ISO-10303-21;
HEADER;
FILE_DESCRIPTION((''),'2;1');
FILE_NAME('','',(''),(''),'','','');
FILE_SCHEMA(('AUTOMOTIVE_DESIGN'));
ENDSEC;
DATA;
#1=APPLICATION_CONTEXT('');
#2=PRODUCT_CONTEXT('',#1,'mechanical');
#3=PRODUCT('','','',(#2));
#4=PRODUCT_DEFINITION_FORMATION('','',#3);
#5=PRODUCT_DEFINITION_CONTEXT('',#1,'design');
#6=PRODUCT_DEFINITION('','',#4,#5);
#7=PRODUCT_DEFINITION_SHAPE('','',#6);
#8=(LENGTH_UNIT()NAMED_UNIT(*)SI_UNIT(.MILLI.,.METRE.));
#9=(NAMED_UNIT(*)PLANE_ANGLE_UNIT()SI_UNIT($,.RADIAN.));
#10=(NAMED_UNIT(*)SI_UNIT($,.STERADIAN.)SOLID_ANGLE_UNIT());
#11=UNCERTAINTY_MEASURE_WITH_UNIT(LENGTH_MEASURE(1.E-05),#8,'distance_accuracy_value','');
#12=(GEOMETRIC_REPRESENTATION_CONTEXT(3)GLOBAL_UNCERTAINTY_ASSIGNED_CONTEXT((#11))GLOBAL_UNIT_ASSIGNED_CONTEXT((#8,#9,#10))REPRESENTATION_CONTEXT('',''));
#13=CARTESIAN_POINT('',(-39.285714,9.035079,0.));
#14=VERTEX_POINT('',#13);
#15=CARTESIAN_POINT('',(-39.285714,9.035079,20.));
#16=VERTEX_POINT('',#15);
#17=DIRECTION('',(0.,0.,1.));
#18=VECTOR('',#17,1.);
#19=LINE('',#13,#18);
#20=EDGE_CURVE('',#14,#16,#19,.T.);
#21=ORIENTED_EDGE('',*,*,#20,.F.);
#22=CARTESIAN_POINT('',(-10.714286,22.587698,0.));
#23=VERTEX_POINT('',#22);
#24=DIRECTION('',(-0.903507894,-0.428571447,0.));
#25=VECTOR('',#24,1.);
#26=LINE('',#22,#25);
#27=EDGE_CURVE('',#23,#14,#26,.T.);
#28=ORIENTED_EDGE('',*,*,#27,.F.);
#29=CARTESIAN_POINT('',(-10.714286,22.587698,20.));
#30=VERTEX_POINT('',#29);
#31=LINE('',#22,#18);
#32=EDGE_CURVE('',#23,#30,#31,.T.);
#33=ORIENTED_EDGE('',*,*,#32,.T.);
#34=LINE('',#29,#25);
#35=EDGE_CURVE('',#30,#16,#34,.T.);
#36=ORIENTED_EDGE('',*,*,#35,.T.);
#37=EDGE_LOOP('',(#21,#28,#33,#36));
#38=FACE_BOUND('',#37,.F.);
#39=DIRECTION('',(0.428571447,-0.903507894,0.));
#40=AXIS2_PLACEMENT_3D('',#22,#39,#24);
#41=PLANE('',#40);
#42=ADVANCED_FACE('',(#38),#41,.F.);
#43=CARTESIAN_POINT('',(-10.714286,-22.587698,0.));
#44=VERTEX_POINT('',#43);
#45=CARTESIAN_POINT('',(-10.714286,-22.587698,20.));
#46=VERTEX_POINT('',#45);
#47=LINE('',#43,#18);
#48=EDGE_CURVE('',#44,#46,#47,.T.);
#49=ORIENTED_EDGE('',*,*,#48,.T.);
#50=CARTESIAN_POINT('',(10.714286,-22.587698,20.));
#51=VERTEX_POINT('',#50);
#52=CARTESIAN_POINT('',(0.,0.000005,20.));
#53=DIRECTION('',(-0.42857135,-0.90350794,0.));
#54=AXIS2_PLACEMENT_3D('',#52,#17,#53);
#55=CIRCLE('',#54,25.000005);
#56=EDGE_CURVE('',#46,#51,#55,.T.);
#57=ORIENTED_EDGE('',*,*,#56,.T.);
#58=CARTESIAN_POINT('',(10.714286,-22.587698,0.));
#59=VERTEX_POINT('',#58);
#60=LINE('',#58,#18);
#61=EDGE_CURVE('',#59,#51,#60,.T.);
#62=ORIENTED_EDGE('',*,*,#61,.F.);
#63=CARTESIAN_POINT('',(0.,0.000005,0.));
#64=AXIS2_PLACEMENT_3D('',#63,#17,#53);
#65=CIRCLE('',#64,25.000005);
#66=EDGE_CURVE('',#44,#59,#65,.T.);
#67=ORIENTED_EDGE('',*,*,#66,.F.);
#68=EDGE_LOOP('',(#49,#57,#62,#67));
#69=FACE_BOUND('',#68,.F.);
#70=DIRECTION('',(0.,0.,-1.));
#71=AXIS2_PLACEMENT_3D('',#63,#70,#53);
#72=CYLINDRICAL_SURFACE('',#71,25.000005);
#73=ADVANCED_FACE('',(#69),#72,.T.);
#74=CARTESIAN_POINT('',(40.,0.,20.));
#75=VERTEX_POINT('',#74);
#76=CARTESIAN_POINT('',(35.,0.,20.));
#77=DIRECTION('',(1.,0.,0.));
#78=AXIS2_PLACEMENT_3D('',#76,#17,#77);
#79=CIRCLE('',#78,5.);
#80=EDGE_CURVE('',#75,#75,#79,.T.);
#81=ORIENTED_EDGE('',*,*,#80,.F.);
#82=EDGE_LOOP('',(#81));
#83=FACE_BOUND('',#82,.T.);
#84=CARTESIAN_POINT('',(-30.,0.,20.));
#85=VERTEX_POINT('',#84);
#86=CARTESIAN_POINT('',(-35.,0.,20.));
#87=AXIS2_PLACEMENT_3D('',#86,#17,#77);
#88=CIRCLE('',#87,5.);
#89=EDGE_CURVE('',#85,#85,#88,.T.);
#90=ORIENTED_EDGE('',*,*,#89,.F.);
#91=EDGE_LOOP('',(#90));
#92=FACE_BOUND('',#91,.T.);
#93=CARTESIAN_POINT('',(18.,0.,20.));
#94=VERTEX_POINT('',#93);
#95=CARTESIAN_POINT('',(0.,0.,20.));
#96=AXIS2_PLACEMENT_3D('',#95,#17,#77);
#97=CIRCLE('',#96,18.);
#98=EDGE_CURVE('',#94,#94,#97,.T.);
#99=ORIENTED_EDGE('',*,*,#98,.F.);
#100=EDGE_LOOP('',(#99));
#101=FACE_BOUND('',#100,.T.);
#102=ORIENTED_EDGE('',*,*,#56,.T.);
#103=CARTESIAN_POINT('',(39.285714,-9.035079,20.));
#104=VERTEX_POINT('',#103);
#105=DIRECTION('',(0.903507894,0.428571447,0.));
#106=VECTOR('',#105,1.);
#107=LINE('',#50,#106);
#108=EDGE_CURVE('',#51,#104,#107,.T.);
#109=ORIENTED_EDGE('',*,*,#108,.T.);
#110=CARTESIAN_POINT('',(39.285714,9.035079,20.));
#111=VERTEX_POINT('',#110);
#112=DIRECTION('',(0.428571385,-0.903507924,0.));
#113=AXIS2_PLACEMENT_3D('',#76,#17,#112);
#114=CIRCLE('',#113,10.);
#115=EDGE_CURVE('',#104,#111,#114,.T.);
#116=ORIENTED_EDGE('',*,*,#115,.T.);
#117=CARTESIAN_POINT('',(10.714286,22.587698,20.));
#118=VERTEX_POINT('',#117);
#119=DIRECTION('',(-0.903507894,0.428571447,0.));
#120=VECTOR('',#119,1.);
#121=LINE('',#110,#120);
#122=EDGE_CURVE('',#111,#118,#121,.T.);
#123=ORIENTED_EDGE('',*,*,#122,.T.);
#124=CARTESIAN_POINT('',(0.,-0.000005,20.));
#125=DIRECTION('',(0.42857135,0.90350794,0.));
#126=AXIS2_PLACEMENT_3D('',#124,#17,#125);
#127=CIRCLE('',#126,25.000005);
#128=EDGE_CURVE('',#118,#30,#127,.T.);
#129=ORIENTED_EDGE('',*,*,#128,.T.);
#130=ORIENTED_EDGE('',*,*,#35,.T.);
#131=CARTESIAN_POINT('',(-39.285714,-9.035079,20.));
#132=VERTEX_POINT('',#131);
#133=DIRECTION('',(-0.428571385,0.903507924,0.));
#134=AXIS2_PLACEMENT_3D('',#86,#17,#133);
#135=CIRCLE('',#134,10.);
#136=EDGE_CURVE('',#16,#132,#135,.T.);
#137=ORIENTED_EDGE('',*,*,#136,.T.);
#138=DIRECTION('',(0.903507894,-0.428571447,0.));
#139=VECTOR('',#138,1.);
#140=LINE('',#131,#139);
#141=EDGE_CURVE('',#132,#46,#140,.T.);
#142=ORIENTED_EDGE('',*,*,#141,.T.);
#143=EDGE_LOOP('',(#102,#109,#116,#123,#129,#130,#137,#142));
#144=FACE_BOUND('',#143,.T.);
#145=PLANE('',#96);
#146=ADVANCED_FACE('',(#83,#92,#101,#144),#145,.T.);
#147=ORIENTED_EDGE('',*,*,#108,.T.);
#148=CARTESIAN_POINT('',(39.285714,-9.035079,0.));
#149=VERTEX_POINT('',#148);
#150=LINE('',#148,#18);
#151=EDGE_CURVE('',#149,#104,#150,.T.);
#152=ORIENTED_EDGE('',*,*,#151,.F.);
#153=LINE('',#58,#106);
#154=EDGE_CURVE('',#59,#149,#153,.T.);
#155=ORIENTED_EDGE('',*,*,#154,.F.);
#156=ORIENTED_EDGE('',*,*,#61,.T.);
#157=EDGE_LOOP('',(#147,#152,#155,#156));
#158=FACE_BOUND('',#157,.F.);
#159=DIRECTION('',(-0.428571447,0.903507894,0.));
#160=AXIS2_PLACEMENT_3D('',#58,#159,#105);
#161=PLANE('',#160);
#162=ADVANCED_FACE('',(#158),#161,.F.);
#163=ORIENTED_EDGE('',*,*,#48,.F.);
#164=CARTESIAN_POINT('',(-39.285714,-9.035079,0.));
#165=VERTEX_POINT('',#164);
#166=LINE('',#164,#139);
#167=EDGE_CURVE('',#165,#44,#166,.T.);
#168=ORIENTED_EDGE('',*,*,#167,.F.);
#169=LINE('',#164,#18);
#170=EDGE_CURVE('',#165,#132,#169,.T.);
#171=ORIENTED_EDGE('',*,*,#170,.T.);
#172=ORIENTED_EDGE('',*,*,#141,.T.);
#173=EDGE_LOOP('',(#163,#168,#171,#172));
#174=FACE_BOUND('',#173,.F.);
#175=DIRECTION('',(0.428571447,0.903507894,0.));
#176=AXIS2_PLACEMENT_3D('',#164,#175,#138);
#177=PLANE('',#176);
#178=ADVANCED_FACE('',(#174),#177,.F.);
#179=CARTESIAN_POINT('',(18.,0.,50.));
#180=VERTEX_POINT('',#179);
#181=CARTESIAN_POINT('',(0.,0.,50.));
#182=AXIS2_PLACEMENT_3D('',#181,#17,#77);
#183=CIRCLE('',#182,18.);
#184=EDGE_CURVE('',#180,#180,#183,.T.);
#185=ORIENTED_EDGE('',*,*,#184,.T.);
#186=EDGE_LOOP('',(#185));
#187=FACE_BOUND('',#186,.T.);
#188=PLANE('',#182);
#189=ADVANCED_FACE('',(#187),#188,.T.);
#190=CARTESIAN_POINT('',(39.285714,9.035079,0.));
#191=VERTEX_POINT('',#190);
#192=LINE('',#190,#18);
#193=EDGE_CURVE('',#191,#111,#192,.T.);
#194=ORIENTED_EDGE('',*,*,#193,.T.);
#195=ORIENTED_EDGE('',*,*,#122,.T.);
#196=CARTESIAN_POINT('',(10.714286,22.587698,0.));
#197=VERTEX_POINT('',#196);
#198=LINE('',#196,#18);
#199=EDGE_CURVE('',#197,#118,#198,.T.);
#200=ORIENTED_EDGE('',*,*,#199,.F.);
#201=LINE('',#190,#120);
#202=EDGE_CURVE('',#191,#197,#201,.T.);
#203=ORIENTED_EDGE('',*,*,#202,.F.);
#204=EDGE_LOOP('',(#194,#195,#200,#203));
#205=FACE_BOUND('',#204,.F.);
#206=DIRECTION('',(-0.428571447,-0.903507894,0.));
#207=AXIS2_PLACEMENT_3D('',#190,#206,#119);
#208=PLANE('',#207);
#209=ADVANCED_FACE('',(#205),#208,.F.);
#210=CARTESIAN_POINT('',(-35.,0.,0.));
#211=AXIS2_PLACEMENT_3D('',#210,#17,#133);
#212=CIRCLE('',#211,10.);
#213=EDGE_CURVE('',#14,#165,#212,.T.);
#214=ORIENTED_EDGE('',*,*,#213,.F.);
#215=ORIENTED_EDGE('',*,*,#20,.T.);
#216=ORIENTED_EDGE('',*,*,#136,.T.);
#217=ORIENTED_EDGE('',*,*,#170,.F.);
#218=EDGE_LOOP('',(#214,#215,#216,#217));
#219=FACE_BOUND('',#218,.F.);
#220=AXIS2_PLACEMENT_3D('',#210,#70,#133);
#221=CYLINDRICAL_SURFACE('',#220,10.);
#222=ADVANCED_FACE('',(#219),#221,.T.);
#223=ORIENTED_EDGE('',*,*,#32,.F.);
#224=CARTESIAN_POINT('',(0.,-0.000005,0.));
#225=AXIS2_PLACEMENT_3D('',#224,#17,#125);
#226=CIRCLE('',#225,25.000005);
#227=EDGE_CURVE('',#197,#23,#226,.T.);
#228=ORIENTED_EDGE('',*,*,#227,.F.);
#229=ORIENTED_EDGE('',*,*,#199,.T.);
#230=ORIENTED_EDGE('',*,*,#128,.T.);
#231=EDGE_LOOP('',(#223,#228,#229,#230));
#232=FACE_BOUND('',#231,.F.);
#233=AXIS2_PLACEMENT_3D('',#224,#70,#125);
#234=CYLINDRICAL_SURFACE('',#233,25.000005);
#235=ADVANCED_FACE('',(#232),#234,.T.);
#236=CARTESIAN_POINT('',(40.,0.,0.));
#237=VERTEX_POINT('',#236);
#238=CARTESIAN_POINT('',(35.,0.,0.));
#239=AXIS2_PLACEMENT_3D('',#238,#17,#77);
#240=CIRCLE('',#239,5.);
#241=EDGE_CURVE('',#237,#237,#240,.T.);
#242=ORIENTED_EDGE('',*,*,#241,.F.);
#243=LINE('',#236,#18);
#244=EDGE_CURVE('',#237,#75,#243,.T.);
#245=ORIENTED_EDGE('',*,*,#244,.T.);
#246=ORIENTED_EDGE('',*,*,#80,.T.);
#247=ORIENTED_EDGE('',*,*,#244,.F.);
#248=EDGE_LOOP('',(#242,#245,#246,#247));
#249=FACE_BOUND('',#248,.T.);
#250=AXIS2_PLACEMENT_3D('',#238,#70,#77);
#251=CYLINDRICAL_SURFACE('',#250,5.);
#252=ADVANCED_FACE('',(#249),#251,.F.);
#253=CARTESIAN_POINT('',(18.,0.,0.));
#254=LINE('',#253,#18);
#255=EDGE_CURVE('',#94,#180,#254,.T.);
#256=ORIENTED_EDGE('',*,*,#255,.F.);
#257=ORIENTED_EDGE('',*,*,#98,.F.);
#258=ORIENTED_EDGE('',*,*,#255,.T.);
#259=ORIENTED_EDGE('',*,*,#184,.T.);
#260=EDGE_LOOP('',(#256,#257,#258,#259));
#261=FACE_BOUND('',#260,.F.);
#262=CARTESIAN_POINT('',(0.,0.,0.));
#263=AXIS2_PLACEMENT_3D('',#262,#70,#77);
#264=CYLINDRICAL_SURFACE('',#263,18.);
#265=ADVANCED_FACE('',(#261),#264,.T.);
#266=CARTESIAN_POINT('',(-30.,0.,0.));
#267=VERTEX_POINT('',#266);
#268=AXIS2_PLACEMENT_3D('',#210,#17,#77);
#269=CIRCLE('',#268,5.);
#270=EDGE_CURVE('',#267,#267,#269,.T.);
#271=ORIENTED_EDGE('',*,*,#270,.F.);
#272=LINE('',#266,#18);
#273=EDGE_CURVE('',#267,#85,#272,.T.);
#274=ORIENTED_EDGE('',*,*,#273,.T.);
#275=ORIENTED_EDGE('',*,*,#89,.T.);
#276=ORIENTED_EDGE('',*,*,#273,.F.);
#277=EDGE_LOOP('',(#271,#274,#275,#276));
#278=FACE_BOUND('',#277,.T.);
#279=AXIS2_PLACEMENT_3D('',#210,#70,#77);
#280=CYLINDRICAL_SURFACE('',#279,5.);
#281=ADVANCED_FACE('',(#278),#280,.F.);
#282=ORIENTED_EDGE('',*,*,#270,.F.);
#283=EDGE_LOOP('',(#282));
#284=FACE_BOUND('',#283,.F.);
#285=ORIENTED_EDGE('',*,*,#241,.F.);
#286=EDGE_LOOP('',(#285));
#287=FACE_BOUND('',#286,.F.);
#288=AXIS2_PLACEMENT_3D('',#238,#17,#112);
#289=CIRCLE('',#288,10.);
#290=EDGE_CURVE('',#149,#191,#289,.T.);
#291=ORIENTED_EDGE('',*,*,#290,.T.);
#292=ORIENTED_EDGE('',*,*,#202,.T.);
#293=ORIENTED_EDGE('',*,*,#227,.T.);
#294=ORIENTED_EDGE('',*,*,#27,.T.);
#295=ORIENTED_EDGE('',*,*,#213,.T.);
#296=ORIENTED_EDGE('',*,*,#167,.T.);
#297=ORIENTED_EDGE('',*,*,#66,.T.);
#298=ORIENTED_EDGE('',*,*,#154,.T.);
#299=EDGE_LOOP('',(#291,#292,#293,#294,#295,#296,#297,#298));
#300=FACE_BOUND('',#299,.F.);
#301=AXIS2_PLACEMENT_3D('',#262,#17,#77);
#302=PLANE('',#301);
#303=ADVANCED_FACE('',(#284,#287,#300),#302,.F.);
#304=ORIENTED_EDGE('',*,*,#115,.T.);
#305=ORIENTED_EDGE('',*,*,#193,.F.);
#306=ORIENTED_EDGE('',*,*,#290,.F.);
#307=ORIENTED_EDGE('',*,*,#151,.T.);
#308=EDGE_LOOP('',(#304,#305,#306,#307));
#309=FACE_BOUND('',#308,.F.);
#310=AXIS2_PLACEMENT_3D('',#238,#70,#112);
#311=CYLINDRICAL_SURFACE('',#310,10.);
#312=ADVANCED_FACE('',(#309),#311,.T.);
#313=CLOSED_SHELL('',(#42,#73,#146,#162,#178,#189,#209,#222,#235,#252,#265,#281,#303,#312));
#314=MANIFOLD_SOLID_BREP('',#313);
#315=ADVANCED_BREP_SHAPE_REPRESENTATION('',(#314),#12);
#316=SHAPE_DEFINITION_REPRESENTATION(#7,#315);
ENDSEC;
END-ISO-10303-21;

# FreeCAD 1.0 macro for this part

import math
import FreeCAD as App
import Part
import Sketcher

V = App.Vector
Q = App.Units.Quantity

doc = App.newDocument("Part")
body = doc.addObject("PartDesign::Body", "Body")

sketch1 = body.newObject("Sketcher::SketchObject", "Sketch")
sketch1.AttachmentSupport = (doc.getObject("XY_Plane"), [""])
sketch1.MapMode = "FlatFace"
sketch1.addGeometry(Part.LineSegment(V(-11, 23, 0), V(-39, 9, 0)), False)
sketch1.addGeometry(Part.ArcOfCircle(Part.Circle(V(-35, 0, 0), V(0, 0, 1), 10), math.radians(115), math.radians(245)), False)
sketch1.addGeometry(Part.LineSegment(V(-39, -9, 0), V(-11, -23, 0)), False)
sketch1.addGeometry(Part.ArcOfCircle(Part.Circle(V(0, 0, 0), V(0, 0, 1), 25), math.radians(-115), math.radians(-65)), False)
sketch1.addGeometry(Part.LineSegment(V(11, -23, 0), V(39, -9, 0)), False)
sketch1.addGeometry(Part.ArcOfCircle(Part.Circle(V(35, 0, 0), V(0, 0, 1), 10), math.radians(-65), math.radians(65)), False)
sketch1.addGeometry(Part.LineSegment(V(39, 9, 0), V(11, 23, 0)), False)
sketch1.addGeometry(Part.ArcOfCircle(Part.Circle(V(0, 0, 0), V(0, 0, 1), 25), math.radians(65), math.radians(115)), False)
sketch1.addGeometry(Part.Circle(V(-35, 0, 0), V(0, 0, 1), 5), False)
sketch1.addGeometry(Part.Circle(V(0, 0, 0), V(0, 0, 1), 18), False)
sketch1.addGeometry(Part.Circle(V(35, 0, 0), V(0, 0, 1), 5), False)
sketch1.addConstraint(Sketcher.Constraint("Tangent", 0, 2, 1, 1))
sketch1.addConstraint(Sketcher.Constraint("Tangent", 1, 2, 2, 1))
sketch1.addConstraint(Sketcher.Constraint("Tangent", 2, 2, 3, 1))
sketch1.addConstraint(Sketcher.Constraint("Tangent", 3, 2, 4, 1))
sketch1.addConstraint(Sketcher.Constraint("Tangent", 4, 2, 5, 1))
sketch1.addConstraint(Sketcher.Constraint("Tangent", 5, 2, 6, 1))
sketch1.addConstraint(Sketcher.Constraint("Tangent", 6, 2, 7, 1))
sketch1.addConstraint(Sketcher.Constraint("Tangent", 7, 2, 0, 1))
sketch1.addConstraint(Sketcher.Constraint("Coincident", 3, 3, -1, 1))
sketch1.addConstraint(Sketcher.Constraint("Coincident", 7, 3, -1, 1))
sketch1.addConstraint(Sketcher.Constraint("Coincident", 9, 3, -1, 1))
sketch1.addConstraint(Sketcher.Constraint("Coincident", 8, 3, 1, 3))
sketch1.addConstraint(Sketcher.Constraint("Coincident", 10, 3, 5, 3))
sketch1.addConstraint(Sketcher.Constraint("Equal", 1, 5))
sketch1.addConstraint(Sketcher.Constraint("Equal", 3, 7))
sketch1.addConstraint(Sketcher.Constraint("Equal", 8, 10))
sketch1.addConstraint(Sketcher.Constraint("Symmetric", 1, 3, 5, 3, -1, 1))
sketch1.addConstraint(Sketcher.Constraint("PointOnObject", 1, 3, -1))
sketch1.addConstraint(Sketcher.Constraint("Diameter", 8, Q("10 mm")))
sketch1.addConstraint(Sketcher.Constraint("Diameter", 9, Q("36 mm")))
sketch1.addConstraint(Sketcher.Constraint("Radius", 1, Q("10 mm")))
sketch1.addConstraint(Sketcher.Constraint("DistanceX", 1, 3, -1, 1, Q("35 mm")))
sketch1.addConstraint(Sketcher.Constraint("Radius", 3, Q("25.000005 mm")))
pad1 = body.newObject("PartDesign::Pad", "Pad")
pad1.Profile = sketch1
pad1.Length = 20

sketch2 = body.newObject("Sketcher::SketchObject", "Sketch001")
sketch2.AttachmentSupport = (doc.getObject("XY_Plane"), [""])
sketch2.MapMode = "FlatFace"
sketch2.addGeometry(Part.Circle(V(0, 0, 0), V(0, 0, 1), 18), False)
sketch2.addConstraint(Sketcher.Constraint("Coincident", 0, 3, -1, 1))
sketch2.addConstraint(Sketcher.Constraint("Diameter", 0, Q("36 mm")))
pad2 = body.newObject("PartDesign::Pad", "Pad001")
pad2.Profile = sketch2
pad2.Length = 50

doc.recompute()
